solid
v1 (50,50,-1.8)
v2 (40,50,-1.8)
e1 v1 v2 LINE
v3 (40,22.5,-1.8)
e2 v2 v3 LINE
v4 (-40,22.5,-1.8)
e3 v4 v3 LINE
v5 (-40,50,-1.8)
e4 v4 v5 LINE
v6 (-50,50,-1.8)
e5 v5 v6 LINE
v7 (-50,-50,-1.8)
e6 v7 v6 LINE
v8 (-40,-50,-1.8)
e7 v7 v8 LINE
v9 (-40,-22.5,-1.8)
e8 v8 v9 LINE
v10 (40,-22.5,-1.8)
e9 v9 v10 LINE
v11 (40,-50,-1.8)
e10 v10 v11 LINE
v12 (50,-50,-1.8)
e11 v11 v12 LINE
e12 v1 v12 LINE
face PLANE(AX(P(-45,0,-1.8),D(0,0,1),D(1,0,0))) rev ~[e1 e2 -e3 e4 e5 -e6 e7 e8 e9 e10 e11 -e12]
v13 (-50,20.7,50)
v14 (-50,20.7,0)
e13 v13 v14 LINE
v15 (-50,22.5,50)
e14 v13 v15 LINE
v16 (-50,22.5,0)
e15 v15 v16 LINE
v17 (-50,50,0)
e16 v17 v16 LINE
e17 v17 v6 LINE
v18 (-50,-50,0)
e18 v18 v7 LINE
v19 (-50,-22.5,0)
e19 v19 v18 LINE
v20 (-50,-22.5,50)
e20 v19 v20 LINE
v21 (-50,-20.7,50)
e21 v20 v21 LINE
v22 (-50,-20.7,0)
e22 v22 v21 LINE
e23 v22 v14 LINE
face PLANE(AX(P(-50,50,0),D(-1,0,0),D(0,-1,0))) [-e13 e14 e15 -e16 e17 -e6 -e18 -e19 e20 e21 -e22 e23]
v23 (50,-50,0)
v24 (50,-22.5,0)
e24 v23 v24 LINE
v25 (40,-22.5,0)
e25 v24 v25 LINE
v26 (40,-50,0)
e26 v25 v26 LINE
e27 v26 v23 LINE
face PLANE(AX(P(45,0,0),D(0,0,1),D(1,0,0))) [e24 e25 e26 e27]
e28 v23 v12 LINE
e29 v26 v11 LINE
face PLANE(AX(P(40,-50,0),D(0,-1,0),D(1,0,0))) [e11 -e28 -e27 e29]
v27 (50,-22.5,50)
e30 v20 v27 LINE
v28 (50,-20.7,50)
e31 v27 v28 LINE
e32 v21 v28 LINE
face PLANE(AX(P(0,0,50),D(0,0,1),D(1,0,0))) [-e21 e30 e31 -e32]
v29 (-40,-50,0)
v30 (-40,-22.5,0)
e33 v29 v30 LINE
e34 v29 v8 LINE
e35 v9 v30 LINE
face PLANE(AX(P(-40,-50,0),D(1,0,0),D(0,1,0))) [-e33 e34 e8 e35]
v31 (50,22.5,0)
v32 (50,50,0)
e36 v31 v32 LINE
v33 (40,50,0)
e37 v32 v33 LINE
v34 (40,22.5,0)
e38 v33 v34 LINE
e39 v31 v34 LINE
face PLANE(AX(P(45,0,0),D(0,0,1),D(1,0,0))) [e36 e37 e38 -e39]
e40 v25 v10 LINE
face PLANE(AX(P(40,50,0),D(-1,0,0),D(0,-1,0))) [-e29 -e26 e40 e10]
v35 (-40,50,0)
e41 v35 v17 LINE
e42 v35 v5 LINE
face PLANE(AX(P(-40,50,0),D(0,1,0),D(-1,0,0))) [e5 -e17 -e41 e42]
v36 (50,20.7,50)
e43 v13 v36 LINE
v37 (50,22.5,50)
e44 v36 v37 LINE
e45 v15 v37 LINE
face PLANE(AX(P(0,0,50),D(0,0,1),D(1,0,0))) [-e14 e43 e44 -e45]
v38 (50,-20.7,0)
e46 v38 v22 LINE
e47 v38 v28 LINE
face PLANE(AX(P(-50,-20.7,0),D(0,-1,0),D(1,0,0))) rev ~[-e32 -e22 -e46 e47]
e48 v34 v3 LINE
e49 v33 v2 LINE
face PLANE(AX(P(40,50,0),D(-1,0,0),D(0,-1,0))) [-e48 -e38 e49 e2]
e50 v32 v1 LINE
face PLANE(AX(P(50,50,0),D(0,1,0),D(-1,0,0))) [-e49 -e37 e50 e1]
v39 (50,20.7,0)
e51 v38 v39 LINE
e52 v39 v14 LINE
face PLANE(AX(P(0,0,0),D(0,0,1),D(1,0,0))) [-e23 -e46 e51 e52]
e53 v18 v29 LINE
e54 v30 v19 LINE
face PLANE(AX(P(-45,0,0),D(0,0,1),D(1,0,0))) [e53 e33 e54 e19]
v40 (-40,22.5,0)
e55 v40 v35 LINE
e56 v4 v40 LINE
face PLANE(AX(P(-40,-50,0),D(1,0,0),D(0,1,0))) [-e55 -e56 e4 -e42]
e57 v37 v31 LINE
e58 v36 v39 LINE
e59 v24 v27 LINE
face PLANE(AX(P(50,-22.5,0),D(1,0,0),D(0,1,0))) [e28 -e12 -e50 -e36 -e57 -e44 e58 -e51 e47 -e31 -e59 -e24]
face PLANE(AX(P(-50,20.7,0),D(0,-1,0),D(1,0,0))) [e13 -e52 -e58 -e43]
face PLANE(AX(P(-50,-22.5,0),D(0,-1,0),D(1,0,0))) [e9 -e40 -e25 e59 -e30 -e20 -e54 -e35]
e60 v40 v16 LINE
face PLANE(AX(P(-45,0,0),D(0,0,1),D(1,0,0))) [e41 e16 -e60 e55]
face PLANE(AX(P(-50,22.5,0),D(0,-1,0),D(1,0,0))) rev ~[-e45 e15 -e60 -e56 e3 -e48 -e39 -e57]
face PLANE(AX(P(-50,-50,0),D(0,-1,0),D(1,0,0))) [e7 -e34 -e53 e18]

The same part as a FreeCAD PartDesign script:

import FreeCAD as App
import Part
import Sketcher

V = App.Vector
Q = App.Units.Quantity


def faces_at(feature, points):
    """Names of the faces that lie closest to the given points."""
    faces = feature.Shape.Faces
    near = lambda p: min(range(len(faces)), key=lambda i: faces[i].distToShape(Part.Vertex(*p))[0])
    return sorted({f"Face{near(p) + 1}" for p in points})

doc = App.newDocument("Part")
body = doc.addObject("PartDesign::Body", "Body")

sketch1 = doc.addObject("Sketcher::SketchObject", "Sketch")
body.addObject(sketch1)
sketch1.AttachmentSupport = (doc.XY_Plane, [""])
sketch1.MapMode = "FlatFace"
sketch1.addGeometry([
    Part.LineSegment(V(-50, 22.5, 0), V(-50, -22.5, 0)),
    Part.LineSegment(V(-50, -22.5, 0), V(50, -22.5, 0)),
    Part.LineSegment(V(50, -22.5, 0), V(50, 22.5, 0)),
    Part.LineSegment(V(50, 22.5, 0), V(-50, 22.5, 0)),
], False)
sketch1.addConstraint([
    Sketcher.Constraint("Coincident", 0, 2, 1, 1),
    Sketcher.Constraint("Coincident", 1, 2, 2, 1),
    Sketcher.Constraint("Coincident", 2, 2, 3, 1),
    Sketcher.Constraint("Coincident", 3, 2, 0, 1),
    Sketcher.Constraint("Vertical", 0),
    Sketcher.Constraint("Horizontal", 1),
    Sketcher.Constraint("Vertical", 2),
    Sketcher.Constraint("Horizontal", 3),
    Sketcher.Constraint("Symmetric", 0, 2, 2, 2, -1, 1),
    Sketcher.Constraint("DistanceX", 1, 1, 1, 2, Q("100 mm")),
    Sketcher.Constraint("DistanceY", 0, 2, 0, 1, Q("45 mm")),
])
pad1 = doc.addObject("PartDesign::Pad", "Pad")
body.addObject(pad1)
pad1.Profile = sketch1
pad1.Type = "TwoLengths"
pad1.Length = 50
pad1.Length2 = 1.8
doc.recompute()

thickness = doc.addObject("PartDesign::Thickness", "Thickness")
body.addObject(thickness)
thickness.Base = (pad1, faces_at(pad1, [(0, 0, 50), (-50, 0, 24.1), (50, 0, 24.1)]))
thickness.Value = 1.8
thickness.Reversed = True
thickness.Join = "Arc"

sketch2 = doc.addObject("Sketcher::SketchObject", "Sketch001")
body.addObject(sketch2)
sketch2.AttachmentSupport = (doc.XY_Plane, [""])
sketch2.MapMode = "FlatFace"
sketch2.addGeometry([
    Part.LineSegment(V(-40, -50, 0), V(-40, 50, 0)),
    Part.LineSegment(V(-40, 50, 0), V(-50, 50, 0)),
    Part.LineSegment(V(-50, 50, 0), V(-50, -50, 0)),
    Part.LineSegment(V(-50, -50, 0), V(-40, -50, 0)),
    Part.LineSegment(V(40, 50, 0), V(40, -50, 0)),
    Part.LineSegment(V(40, -50, 0), V(50, -50, 0)),
    Part.LineSegment(V(50, -50, 0), V(50, 50, 0)),
    Part.LineSegment(V(50, 50, 0), V(40, 50, 0)),
], False)
sketch2.addConstraint([
    Sketcher.Constraint("Coincident", 0, 2, 1, 1),
    Sketcher.Constraint("Coincident", 1, 2, 2, 1),
    Sketcher.Constraint("Coincident", 2, 2, 3, 1),
    Sketcher.Constraint("Coincident", 3, 2, 0, 1),
    Sketcher.Constraint("Coincident", 4, 2, 5, 1),
    Sketcher.Constraint("Coincident", 5, 2, 6, 1),
    Sketcher.Constraint("Coincident", 6, 2, 7, 1),
    Sketcher.Constraint("Coincident", 7, 2, 4, 1),
    Sketcher.Constraint("Vertical", 0),
    Sketcher.Constraint("Horizontal", 1),
    Sketcher.Constraint("Vertical", 2),
    Sketcher.Constraint("Horizontal", 3),
    Sketcher.Constraint("Vertical", 4),
    Sketcher.Constraint("Horizontal", 5),
    Sketcher.Constraint("Vertical", 6),
    Sketcher.Constraint("Horizontal", 7),
    Sketcher.Constraint("Symmetric", 0, 2, 4, 2, -1, 1),
    Sketcher.Constraint("Symmetric", 2, 2, 6, 2, -1, 1),
    Sketcher.Constraint("Horizontal", 3, 2, 4, 2),
    Sketcher.Constraint("DistanceX", 1, 2, 1, 1, Q("10 mm")),
    Sketcher.Constraint("DistanceY", 0, 1, 0, 2, Q("100 mm")),
    Sketcher.Constraint("DistanceX", 0, 2, -1, 1, Q("40 mm")),
])
pad2 = doc.addObject("PartDesign::Pad", "Pad001")
body.addObject(pad2)
pad2.Profile = sketch2
pad2.Length = 1.8
pad2.Reversed = True

doc.recompute()
